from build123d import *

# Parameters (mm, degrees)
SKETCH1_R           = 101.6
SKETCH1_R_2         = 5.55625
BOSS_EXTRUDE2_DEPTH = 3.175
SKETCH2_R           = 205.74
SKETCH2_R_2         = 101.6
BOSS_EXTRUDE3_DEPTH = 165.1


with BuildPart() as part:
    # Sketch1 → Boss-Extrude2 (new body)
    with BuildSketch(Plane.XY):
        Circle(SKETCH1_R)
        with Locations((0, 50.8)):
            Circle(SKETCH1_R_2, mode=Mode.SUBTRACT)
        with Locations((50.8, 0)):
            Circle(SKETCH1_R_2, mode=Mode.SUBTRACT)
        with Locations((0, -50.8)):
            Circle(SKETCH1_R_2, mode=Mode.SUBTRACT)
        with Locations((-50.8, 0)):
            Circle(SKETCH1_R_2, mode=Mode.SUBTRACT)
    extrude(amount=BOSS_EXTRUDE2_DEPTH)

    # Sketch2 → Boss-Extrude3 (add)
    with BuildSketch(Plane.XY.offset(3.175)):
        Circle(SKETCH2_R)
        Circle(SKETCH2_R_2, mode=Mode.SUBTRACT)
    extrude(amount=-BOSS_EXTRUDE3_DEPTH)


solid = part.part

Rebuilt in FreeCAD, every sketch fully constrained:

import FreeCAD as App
import Part
import Sketcher

V = App.Vector
Q = App.Units.Quantity

doc = App.newDocument("Part")
body = doc.addObject("PartDesign::Body", "Body")

sketch1 = body.newObject("Sketcher::SketchObject", "Sketch")
sketch1.AttachmentSupport = (doc.getObject("XY_Plane"), [""])
sketch1.MapMode = "FlatFace"
sketch1.addGeometry(Part.Circle(V(0, 0, 0), V(0, 0, 1), 101.6), False)
sketch1.addGeometry(Part.Circle(V(0, -50.8, 0), V(0, 0, 1), 5.55625), False)
sketch1.addGeometry(Part.Circle(V(-50.8, 0, 0), V(0, 0, 1), 5.55625), False)
sketch1.addGeometry(Part.Circle(V(50.8, 0, 0), V(0, 0, 1), 5.55625), False)
sketch1.addGeometry(Part.Circle(V(0, 50.8, 0), V(0, 0, 1), 5.55625), False)
sketch1.addConstraint(Sketcher.Constraint("Coincident", 0, 3, -1, 1))
sketch1.addConstraint(Sketcher.Constraint("Equal", 1, 2))
sketch1.addConstraint(Sketcher.Constraint("Equal", 2, 3))
sketch1.addConstraint(Sketcher.Constraint("Equal", 3, 4))
sketch1.addConstraint(Sketcher.Constraint("Symmetric", 2, 3, 3, 3, -1, 1))
sketch1.addConstraint(Sketcher.Constraint("Symmetric", 1, 3, 4, 3, -1, 1))
sketch1.addConstraint(Sketcher.Constraint("PointOnObject", 1, 3, -2))
sketch1.addConstraint(Sketcher.Constraint("PointOnObject", 2, 3, -1))
sketch1.addConstraint(Sketcher.Constraint("Diameter", 0, Q("8 in")))
sketch1.addConstraint(Sketcher.Constraint("Diameter", 1, Q("0.4375 in")))
sketch1.addConstraint(Sketcher.Constraint("DistanceY", 1, 3, -1, 1, Q("2 in")))
sketch1.addConstraint(Sketcher.Constraint("DistanceX", 2, 3, -1, 1, Q("2 in")))
pad1 = body.newObject("PartDesign::Pad", "Pad")
pad1.Profile = sketch1
pad1.Length = Q("0.125 in")

sketch2 = body.newObject("Sketcher::SketchObject", "Sketch001")
sketch2.AttachmentSupport = (doc.getObject("XY_Plane"), [""])
sketch2.MapMode = "FlatFace"
sketch2.AttachmentOffset = App.Placement(V(0, 0, 0.125 * 25.4), App.Rotation())
sketch2.addGeometry(Part.Circle(V(0, 0, 0), V(0, 0, 1), 205.74), False)
sketch2.addGeometry(Part.Circle(V(0, 0, 0), V(0, 0, 1), 101.6), False)
sketch2.addConstraint(Sketcher.Constraint("Coincident", 0, 3, -1, 1))
sketch2.addConstraint(Sketcher.Constraint("Coincident", 1, 3, -1, 1))
sketch2.addConstraint(Sketcher.Constraint("Diameter", 1, Q("8 in")))
sketch2.addConstraint(Sketcher.Constraint("Diameter", 0, Q("16.2 in")))
pad2 = body.newObject("PartDesign::Pad", "Pad001")
pad2.Profile = sketch2
pad2.Length = Q("6.5 in")
pad2.Reversed = True

doc.recompute()
